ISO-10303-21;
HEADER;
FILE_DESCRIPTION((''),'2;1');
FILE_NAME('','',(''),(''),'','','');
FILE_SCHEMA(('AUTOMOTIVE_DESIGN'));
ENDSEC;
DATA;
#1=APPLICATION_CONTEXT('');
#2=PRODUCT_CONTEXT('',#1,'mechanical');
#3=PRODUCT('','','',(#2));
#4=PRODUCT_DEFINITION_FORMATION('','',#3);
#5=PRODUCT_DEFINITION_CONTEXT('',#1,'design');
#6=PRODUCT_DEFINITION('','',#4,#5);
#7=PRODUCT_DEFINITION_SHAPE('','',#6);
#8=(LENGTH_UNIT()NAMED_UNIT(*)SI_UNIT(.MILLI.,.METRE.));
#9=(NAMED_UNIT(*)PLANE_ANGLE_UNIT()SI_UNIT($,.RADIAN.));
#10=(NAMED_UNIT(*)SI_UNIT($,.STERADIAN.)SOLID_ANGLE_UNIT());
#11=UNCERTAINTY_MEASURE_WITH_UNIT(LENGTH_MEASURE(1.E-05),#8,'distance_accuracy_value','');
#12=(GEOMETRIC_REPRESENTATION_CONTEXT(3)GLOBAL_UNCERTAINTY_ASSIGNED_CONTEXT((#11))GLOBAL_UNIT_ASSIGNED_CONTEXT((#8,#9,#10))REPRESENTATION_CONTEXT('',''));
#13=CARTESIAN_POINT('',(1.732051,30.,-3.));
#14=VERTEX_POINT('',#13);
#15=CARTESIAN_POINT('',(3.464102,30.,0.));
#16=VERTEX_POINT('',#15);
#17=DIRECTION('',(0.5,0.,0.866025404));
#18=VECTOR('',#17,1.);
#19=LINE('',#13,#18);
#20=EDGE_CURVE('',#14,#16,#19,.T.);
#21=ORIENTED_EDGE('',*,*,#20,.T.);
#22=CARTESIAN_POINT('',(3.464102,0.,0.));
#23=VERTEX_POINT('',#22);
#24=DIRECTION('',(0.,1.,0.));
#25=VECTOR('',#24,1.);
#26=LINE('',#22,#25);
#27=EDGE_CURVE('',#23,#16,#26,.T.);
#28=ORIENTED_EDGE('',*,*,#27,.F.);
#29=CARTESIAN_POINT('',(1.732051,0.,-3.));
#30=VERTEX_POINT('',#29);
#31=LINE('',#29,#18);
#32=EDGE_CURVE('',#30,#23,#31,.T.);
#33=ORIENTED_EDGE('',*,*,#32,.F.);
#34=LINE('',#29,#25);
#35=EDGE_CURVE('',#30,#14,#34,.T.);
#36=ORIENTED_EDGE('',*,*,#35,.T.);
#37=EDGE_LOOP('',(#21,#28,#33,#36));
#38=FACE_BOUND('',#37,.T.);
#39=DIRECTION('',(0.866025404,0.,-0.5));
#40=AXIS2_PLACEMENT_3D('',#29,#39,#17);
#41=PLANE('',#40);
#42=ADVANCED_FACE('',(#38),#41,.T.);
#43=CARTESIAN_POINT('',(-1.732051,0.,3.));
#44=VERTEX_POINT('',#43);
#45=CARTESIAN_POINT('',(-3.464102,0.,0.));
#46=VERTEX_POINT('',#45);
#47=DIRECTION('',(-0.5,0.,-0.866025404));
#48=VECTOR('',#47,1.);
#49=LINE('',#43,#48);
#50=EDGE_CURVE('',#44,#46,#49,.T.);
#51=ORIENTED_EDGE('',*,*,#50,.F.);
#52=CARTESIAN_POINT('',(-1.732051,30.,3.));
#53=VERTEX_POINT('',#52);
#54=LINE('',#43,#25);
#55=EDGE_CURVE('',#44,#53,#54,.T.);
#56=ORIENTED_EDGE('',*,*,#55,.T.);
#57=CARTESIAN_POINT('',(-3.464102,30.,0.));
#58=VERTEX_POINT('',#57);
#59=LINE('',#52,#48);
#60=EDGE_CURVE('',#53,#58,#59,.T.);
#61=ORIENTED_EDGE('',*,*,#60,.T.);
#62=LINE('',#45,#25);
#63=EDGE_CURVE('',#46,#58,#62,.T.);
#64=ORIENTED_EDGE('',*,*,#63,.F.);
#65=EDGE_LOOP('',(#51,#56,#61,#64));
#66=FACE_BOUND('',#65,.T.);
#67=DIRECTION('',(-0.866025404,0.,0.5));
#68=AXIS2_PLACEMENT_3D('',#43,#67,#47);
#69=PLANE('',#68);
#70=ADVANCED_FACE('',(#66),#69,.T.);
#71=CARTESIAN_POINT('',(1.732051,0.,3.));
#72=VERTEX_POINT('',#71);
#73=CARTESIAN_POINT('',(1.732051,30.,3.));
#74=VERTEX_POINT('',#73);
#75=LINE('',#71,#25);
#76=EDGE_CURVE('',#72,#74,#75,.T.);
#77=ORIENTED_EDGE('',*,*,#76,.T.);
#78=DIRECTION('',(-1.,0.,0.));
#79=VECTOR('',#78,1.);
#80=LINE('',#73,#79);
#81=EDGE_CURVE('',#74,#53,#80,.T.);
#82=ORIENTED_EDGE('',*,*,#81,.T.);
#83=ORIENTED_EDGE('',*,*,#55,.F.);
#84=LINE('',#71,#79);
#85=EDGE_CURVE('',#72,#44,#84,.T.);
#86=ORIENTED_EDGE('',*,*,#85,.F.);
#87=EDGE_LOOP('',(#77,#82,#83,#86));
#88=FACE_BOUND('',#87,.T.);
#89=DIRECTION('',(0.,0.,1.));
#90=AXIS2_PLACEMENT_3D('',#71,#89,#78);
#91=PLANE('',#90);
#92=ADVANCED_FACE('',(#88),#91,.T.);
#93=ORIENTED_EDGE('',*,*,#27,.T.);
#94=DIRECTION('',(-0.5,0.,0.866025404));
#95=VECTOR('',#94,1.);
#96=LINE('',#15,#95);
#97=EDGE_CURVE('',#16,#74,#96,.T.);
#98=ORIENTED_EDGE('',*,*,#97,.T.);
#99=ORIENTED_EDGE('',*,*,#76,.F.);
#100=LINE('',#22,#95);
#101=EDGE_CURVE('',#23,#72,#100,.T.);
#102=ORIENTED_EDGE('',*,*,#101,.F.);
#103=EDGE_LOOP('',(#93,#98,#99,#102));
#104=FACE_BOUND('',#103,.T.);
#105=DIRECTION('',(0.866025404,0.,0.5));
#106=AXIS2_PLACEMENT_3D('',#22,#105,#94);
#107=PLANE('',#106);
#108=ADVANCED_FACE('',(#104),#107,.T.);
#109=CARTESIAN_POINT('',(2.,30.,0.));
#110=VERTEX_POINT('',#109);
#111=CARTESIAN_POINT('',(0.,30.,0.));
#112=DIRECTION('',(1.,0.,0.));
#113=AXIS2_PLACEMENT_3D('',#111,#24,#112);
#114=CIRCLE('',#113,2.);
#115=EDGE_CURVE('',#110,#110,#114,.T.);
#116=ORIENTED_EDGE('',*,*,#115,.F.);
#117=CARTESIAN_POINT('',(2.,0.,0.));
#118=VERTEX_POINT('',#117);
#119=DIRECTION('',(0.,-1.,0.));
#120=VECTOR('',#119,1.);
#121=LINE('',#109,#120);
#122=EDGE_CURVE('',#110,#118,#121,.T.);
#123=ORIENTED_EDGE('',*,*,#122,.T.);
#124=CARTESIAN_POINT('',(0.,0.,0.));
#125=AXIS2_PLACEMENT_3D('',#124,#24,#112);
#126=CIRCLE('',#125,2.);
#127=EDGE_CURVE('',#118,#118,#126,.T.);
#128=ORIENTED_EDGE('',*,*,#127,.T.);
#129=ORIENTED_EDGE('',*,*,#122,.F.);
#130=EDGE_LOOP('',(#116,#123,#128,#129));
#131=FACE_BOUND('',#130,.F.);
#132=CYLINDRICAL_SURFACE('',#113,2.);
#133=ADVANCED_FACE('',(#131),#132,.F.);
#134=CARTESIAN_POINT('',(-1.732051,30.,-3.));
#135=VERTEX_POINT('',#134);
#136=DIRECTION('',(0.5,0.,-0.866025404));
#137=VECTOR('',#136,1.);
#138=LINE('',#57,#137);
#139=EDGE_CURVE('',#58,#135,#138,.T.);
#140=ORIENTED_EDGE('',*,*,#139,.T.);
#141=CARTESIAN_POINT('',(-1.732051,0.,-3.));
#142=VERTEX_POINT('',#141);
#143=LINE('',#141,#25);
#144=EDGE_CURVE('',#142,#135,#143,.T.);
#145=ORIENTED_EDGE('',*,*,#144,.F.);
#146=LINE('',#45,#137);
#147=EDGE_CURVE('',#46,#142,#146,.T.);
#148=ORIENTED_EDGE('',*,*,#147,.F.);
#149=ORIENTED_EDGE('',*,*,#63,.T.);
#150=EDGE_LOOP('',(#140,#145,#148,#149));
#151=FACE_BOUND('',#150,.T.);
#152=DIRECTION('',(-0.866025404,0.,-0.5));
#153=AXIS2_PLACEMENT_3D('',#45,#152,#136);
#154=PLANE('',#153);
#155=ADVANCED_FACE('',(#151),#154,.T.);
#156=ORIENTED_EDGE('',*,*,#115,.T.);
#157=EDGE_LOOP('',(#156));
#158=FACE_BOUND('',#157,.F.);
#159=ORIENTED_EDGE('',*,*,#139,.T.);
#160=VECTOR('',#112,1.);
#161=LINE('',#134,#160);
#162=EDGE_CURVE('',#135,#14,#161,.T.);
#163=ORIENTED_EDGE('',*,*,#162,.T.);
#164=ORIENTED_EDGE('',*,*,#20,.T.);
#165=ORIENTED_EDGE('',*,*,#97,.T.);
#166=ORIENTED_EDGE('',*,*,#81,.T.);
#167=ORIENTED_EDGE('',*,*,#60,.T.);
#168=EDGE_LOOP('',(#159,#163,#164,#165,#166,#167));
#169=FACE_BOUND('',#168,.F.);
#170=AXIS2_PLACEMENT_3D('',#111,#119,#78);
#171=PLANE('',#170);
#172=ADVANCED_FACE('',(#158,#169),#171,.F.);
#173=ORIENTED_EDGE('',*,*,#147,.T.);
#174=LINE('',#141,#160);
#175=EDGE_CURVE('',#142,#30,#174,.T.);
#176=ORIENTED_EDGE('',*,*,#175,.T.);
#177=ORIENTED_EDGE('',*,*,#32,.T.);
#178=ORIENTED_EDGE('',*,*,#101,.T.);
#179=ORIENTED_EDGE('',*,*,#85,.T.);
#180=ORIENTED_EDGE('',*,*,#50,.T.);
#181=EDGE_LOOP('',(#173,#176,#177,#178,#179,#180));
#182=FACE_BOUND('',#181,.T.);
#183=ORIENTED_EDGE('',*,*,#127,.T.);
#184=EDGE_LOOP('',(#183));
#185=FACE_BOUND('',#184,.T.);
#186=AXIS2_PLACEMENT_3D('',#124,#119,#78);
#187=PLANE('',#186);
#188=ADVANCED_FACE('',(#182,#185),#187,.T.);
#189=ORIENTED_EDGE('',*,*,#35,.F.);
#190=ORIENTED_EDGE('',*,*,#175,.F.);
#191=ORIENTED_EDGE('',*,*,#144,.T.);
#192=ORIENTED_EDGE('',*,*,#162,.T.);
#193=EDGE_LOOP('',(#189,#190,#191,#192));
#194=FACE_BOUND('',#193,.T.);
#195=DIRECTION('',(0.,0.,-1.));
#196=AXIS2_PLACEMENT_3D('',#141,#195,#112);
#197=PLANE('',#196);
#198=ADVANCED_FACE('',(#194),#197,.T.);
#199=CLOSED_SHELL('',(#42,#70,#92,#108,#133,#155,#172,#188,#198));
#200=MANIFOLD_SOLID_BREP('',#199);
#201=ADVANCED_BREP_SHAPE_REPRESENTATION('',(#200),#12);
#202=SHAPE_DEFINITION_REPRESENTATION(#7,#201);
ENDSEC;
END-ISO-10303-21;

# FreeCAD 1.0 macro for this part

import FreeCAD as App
import Part
import Sketcher
from FreeCAD import Vector
Q = App.Units.Quantity

doc = App.newDocument("Part")
body = doc.addObject("PartDesign::Body", "Body")

# Sketch on XZ plane
sketch1 = body.newObject("Sketcher::SketchObject", "Sketch")
sketch1.AttachmentSupport = (doc.getObject("XZ_Plane"), [""])
sketch1.MapMode = "FlatFace"
sketch1.addGeometry(Part.LineSegment(Vector(1.7, -3, 0), Vector(-1.7, -3, 0)), False)
sketch1.addGeometry(Part.LineSegment(Vector(-1.7, -3, 0), Vector(-3.5, 0, 0)), False)
sketch1.addGeometry(Part.LineSegment(Vector(-3.5, 0, 0), Vector(-1.7, 3, 0)), False)
sketch1.addGeometry(Part.LineSegment(Vector(-1.7, 3, 0), Vector(1.7, 3, 0)), False)
sketch1.addGeometry(Part.LineSegment(Vector(1.7, 3, 0), Vector(3.5, 0, 0)), False)
sketch1.addGeometry(Part.LineSegment(Vector(3.5, 0, 0), Vector(1.7, -3, 0)), False)
sketch1.addConstraint(Sketcher.Constraint("Coincident", 0, 2, 1, 1))
sketch1.addConstraint(Sketcher.Constraint("Coincident", 1, 2, 2, 1))
sketch1.addConstraint(Sketcher.Constraint("Coincident", 2, 2, 3, 1))
sketch1.addConstraint(Sketcher.Constraint("Coincident", 3, 2, 4, 1))
sketch1.addConstraint(Sketcher.Constraint("Coincident", 4, 2, 5, 1))
sketch1.addConstraint(Sketcher.Constraint("Coincident", 5, 2, 0, 1))
sketch1.addConstraint(Sketcher.Constraint("Horizontal", 0))
sketch1.addConstraint(Sketcher.Constraint("Horizontal", 3))
sketch1.addConstraint(Sketcher.Constraint("Symmetric", 0, 2, 3, 2, -1, 1))
sketch1.addConstraint(Sketcher.Constraint("Symmetric", 1, 2, 4, 2, -1, 1))
sketch1.addConstraint(Sketcher.Constraint("PointOnObject", 1, 2, -1))
sketch1.addConstraint(Sketcher.Constraint("Parallel", 2, 5))
sketch1.addConstraint(Sketcher.Constraint("Vertical", 0, 2, 2, 2))
sketch1.addConstraint(Sketcher.Constraint("Angle", 1, Q("120 deg")))
sketch1.addConstraint(Sketcher.Constraint("DistanceY", 0, 2, -1, 1, Q("3 mm")))
sketch1.addConstraint(Sketcher.Constraint("DistanceX", 0, 2, 0, 1, Q("3.464102 mm")))
pad1 = body.newObject("PartDesign::Pad", "Pad")
pad1.Profile = sketch1
pad1.Length = 30
pad1.Reversed = True

# Sketch on XZ plane
sketch2 = body.newObject("Sketcher::SketchObject", "Sketch001")
sketch2.AttachmentSupport = (doc.getObject("XZ_Plane"), [""])
sketch2.MapMode = "FlatFace"
sketch2.AttachmentOffset = App.Placement(Vector(0, 0, -30), App.Rotation())
sketch2.addGeometry(Part.Circle(Vector(0, 0, 0), Vector(0, 0, 1), 2), False)
sketch2.addConstraint(Sketcher.Constraint("Coincident", 0, 3, -1, 1))
sketch2.addConstraint(Sketcher.Constraint("Diameter", 0, Q("4 mm")))
pocket1 = body.newObject("PartDesign::Pocket", "Pocket")
pocket1.Profile = sketch2
pocket1.Type = "UpToFirst"
pocket1.Reversed = True

# Sketch on XZ plane
sketch3 = body.newObject("Sketcher::SketchObject", "Sketch002")
sketch3.AttachmentSupport = (doc.getObject("XZ_Plane"), [""])
sketch3.MapMode = "FlatFace"
sketch3.AttachmentOffset = App.Placement(Vector(0, 0, -30), App.Rotation())
sketch3.addGeometry(Part.Circle(Vector(0, 0, 0), Vector(0, 0, 1), 2), False)
sketch3.addConstraint(Sketcher.Constraint("Coincident", 0, 3, -1, 1))
sketch3.addConstraint(Sketcher.Constraint("Diameter", 0, Q("4 mm")))
pocket2 = body.newObject("PartDesign::Pocket", "Pocket001")
pocket2.Profile = sketch3
pocket2.Length = 1

doc.recompute()
